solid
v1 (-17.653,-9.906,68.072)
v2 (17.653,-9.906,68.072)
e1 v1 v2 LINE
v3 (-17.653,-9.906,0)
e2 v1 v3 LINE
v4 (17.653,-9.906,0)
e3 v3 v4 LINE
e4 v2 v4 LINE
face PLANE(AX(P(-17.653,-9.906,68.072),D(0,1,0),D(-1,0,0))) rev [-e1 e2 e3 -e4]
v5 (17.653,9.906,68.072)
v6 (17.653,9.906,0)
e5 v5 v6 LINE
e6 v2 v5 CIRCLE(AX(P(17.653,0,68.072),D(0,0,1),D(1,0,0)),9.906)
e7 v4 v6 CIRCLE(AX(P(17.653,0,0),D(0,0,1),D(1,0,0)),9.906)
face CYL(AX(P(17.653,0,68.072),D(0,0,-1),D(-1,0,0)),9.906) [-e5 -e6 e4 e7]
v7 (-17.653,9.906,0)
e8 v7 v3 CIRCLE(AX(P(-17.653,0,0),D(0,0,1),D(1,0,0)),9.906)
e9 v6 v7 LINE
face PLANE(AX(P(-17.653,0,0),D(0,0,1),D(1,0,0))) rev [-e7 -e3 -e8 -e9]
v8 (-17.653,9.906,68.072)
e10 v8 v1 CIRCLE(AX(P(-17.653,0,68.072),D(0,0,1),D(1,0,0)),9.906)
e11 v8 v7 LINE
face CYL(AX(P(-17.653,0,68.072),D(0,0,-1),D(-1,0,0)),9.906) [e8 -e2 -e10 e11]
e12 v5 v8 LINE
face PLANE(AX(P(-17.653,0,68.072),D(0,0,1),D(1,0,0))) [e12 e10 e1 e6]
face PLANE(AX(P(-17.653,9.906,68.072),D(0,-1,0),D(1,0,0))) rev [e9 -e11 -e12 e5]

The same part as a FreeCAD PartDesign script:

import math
import FreeCAD as App
import Part
import Sketcher

V = App.Vector
Q = App.Units.Quantity

doc = App.newDocument("Part")
body = doc.addObject("PartDesign::Body", "Body")

# Sketch on XY plane
sketch1 = body.newObject("Sketcher::SketchObject", "Sketch")
sketch1.AttachmentSupport = (doc.getObject("XY_Plane"), [""])
sketch1.MapMode = "FlatFace"
sketch1.addGeometry([
    Part.LineSegment(V(17.653, 9.906, 0), V(-17.653, 9.906, 0)),
    Part.ArcOfCircle(Part.Circle(V(-17.653, 0, 0), V(0, 0, 1), 9.906), math.radians(90), math.radians(270)),
    Part.LineSegment(V(-17.653, -9.906, 0), V(17.653, -9.906, 0)),
    Part.ArcOfCircle(Part.Circle(V(17.653, 0, 0), V(0, 0, 1), 9.906), math.radians(-90), math.radians(90)),
], False)
sketch1.addConstraint([
    Sketcher.Constraint("Tangent", 0, 2, 1, 1),
    Sketcher.Constraint("Tangent", 1, 2, 2, 1),
    Sketcher.Constraint("Tangent", 2, 2, 3, 1),
    Sketcher.Constraint("Tangent", 3, 2, 0, 1),
    Sketcher.Constraint("Horizontal", 0),
    Sketcher.Constraint("Horizontal", 2),
    Sketcher.Constraint("Symmetric", 1, 3, 3, 3, -1, 1),
    Sketcher.Constraint("Radius", 1, Q("0.39 in")),
    Sketcher.Constraint("DistanceX", 0, 2, 0, 1, Q("1.39 in")),
])
pad1 = body.newObject("PartDesign::Pad", "Pad")
pad1.Profile = sketch1
pad1.Length = Q("2.68 in")

doc.recompute()
